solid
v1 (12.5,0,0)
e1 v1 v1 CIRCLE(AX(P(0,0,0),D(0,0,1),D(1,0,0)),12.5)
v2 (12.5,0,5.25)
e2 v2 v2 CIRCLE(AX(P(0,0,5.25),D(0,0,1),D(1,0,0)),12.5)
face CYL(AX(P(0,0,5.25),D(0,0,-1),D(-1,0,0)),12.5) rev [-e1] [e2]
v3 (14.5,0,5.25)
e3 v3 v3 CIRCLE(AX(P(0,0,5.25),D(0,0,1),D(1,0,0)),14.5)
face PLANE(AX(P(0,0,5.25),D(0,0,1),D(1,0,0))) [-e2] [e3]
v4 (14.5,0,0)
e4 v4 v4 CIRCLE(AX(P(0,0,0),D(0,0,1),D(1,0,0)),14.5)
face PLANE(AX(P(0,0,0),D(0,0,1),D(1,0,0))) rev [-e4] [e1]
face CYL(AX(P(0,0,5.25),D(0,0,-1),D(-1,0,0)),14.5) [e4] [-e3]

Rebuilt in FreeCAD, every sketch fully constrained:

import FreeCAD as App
import Part
import Sketcher
from FreeCAD import Vector

doc = App.newDocument("Part")
body = doc.addObject("PartDesign::Body", "Body")

sketch1 = doc.addObject("Sketcher::SketchObject", "Sketch")
body.addObject(sketch1)
sketch1.AttachmentSupport = (doc.XY_Plane, [""])
sketch1.MapMode = "FlatFace"
sketch1.addGeometry(Part.Circle(Vector(0, 0, 0), Vector(0, 0, 1), 14), False)
sketch1.addGeometry(Part.Circle(Vector(0, 0, 0), Vector(0, 0, 1), 12), False)
sketch1.addConstraint(Sketcher.Constraint("Coincident", 0, 3, -1, 1))
sketch1.addConstraint(Sketcher.Constraint("Coincident", 1, 3, -1, 1))
sketch1.addConstraint(Sketcher.Constraint("Diameter", 0, 29.0))
sketch1.addConstraint(Sketcher.Constraint("Diameter", 1, 25.0))
pad1 = doc.addObject("PartDesign::Pad", "Pad")
body.addObject(pad1)
pad1.Profile = sketch1
pad1.Length = 5.25

doc.recompute()
